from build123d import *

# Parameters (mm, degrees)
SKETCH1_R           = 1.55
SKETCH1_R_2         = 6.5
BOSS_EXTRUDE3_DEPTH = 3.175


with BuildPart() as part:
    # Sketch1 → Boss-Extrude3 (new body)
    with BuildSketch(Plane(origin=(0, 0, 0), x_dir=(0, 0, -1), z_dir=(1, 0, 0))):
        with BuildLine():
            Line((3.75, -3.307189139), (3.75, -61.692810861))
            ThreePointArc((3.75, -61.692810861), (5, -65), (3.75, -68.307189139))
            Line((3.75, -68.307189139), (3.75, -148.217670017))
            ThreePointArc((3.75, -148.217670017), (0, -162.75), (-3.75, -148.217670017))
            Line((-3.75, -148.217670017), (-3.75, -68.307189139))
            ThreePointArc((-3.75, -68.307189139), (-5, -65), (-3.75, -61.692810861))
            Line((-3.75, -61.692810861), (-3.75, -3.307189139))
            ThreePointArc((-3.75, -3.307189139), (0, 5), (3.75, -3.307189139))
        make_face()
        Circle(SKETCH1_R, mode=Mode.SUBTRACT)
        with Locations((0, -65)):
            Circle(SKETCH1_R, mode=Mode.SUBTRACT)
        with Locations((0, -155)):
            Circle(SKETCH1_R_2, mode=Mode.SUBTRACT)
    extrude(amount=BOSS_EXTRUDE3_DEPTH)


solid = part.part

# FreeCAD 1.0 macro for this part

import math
import FreeCAD as App
import Part
import Sketcher
from FreeCAD import Vector

doc = App.newDocument("Part")
params = doc.addObject("Spreadsheet::Sheet", "Params")
for row, (alias, value) in enumerate([
    ("sketch1_diameter", "13 mm"),
    ("sketch1_radius", "5 mm"),
    ("sketch1_diameter2", "3.1 mm"),
    ("sketch1_radius2", "7.75 mm"),
    ("pad1_length", "3.175 mm"),
], start=1):
    params.set(f"A{row}", alias)
    params.set(f"B{row}", "=" + value)
    params.setAlias(f"B{row}", alias)

body = doc.addObject("PartDesign::Body", "Body")

# Sketch on YZ plane
sketch1 = body.newObject("Sketcher::SketchObject", "Sketch")
sketch1.AttachmentSupport = (doc.getObject("YZ_Plane"), [""])
sketch1.MapMode = "FlatFace"
sketch1.addGeometry([
    Part.LineSegment(Vector(-61.692811, -3.75, 0), Vector(-3.307189, -3.75, 0)),  # 0
    Part.ArcOfCircle(Part.Circle(Vector(0, 0, 0), Vector(0, 0, 1), 5), math.radians(-131.409622), math.radians(131.409622)),  # 1
    Part.LineSegment(Vector(-3.307189, 3.75, 0), Vector(-61.692811, 3.75, 0)),  # 2
    Part.ArcOfCircle(Part.Circle(Vector(-65, 0, 0), Vector(0, 0, 1), 5), math.radians(48.590378), math.radians(131.409622)),  # 3
    Part.LineSegment(Vector(-68.307189, 3.75, 0), Vector(-148.21767, 3.75, 0)),  # 4
    Part.ArcOfCircle(Part.Circle(Vector(-155, 0, 0), Vector(0, 0, 1), 7.75), math.radians(28.938528), math.radians(331.061472)),  # 5
    Part.LineSegment(Vector(-148.21767, -3.75, 0), Vector(-68.307189, -3.75, 0)),  # 6
    Part.ArcOfCircle(Part.Circle(Vector(-65, 0, 0), Vector(0, 0, 1), 5), math.radians(-131.409622), math.radians(-48.590378)),  # 7
    Part.Circle(Vector(-155, 0, 0), Vector(0, 0, 1), 6.5),  # 8
    Part.Circle(Vector(-65, 0, 0), Vector(0, 0, 1), 1.55),  # 9
    Part.Circle(Vector(0, 0, 0), Vector(0, 0, 1), 1.55),  # 10
], False)
sketch1.addConstraint([
    Sketcher.Constraint("Coincident", 0, 2, 1, 1),
    Sketcher.Constraint("Coincident", 1, 2, 2, 1),
    Sketcher.Constraint("Coincident", 2, 2, 3, 1),
    Sketcher.Constraint("Coincident", 3, 2, 4, 1),
    Sketcher.Constraint("Coincident", 4, 2, 5, 1),
    Sketcher.Constraint("Coincident", 5, 2, 6, 1),
    Sketcher.Constraint("Coincident", 6, 2, 7, 1),
    Sketcher.Constraint("Coincident", 7, 2, 0, 1),
    Sketcher.Constraint("Horizontal", 0),
    Sketcher.Constraint("Horizontal", 2),
    Sketcher.Constraint("Horizontal", 4),
    Sketcher.Constraint("Horizontal", 6),
    Sketcher.Constraint("Coincident", 1, 3, -1, 1),
    Sketcher.Constraint("Coincident", 10, 3, -1, 1),
    Sketcher.Constraint("Coincident", 7, 3, 3, 3),
    Sketcher.Constraint("Coincident", 8, 3, 5, 3),
    Sketcher.Constraint("Coincident", 9, 3, 3, 3),
    Sketcher.Constraint("Equal", 1, 3),
    Sketcher.Constraint("Equal", 3, 7),
    Sketcher.Constraint("Equal", 9, 10),
    Sketcher.Constraint("Symmetric", 4, 2, 5, 2, -1),
    Sketcher.Constraint("Symmetric", 2, 2, 7, 2, -1),
    Sketcher.Constraint("Horizontal", 2, 2, 3, 2),
    Sketcher.Constraint("Diameter", 8, 13.0),
    Sketcher.Constraint("Radius", 1, 5.0),
    Sketcher.Constraint("Diameter", 9, 3.1),
    Sketcher.Constraint("Radius", 5, 7.75),
    Sketcher.Constraint("DistanceX", 3, 3, -1, 1, 65.0),
    Sketcher.Constraint("DistanceX", 5, 3, -1, 1, 155.0),
    Sketcher.Constraint("DistanceY", 0, 2, 1, 2, 7.5),
])
sketch1.setExpression("Constraints[23]", "Params.sketch1_diameter")
sketch1.setExpression("Constraints[24]", "Params.sketch1_radius")
sketch1.setExpression("Constraints[25]", "Params.sketch1_diameter2")
sketch1.setExpression("Constraints[26]", "Params.sketch1_radius2")
pad1 = body.newObject("PartDesign::Pad", "Pad")
pad1.Profile = sketch1
pad1.setExpression("Length", "Params.pad1_length")

doc.recompute()
